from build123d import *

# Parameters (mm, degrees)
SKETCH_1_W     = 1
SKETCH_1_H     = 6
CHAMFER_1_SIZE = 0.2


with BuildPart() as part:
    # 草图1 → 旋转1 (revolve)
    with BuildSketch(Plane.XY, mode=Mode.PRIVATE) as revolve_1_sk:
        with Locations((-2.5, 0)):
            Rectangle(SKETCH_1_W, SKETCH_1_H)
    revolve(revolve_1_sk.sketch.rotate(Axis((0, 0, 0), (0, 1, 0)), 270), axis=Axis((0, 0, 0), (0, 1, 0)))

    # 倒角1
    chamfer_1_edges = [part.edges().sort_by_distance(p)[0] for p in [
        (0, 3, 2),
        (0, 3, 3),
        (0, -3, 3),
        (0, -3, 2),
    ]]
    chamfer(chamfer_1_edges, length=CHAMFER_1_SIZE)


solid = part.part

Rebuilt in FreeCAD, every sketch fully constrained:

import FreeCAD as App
import Part
import Sketcher


def edges_at(feature, points):
    """Names of the edges that pass closest to the given points."""
    edges = feature.Shape.Edges
    near = lambda p: min(range(len(edges)), key=lambda i: edges[i].distToShape(Part.Vertex(*p))[0])
    return sorted({f"Edge{near(p) + 1}" for p in points})

doc = App.newDocument("Part")
params = doc.addObject("Spreadsheet::Sheet", "Params")
for row, (alias, value) in enumerate([
    ("sketch1_width", "1 mm"),
    ("sketch1_height", "6 mm"),
    ("revolution_angle", "360 deg"),
    ("chamfer_size", "0.2 mm"),
], start=1):
    params.set(f"A{row}", alias)
    params.set(f"B{row}", "=" + value)
    params.setAlias(f"B{row}", alias)

body = doc.addObject("PartDesign::Body", "Body")

# Sketch on XY plane
sketch1 = body.newObject("Sketcher::SketchObject", "Sketch")
sketch1.AttachmentSupport = (doc.getObject("XY_Plane"), [""])
sketch1.MapMode = "FlatFace"
sketch1.addGeometry(Part.LineSegment(App.Vector(-3, 3, 0), App.Vector(-3, -3, 0)), False)
sketch1.addGeometry(Part.LineSegment(App.Vector(-3, -3, 0), App.Vector(-2, -3, 0)), False)
sketch1.addGeometry(Part.LineSegment(App.Vector(-2, -3, 0), App.Vector(-2, 3, 0)), False)
sketch1.addGeometry(Part.LineSegment(App.Vector(-2, 3, 0), App.Vector(-3, 3, 0)), False)
sketch1.addConstraint(Sketcher.Constraint("Coincident", 0, 2, 1, 1))
sketch1.addConstraint(Sketcher.Constraint("Coincident", 1, 2, 2, 1))
sketch1.addConstraint(Sketcher.Constraint("Coincident", 2, 2, 3, 1))
sketch1.addConstraint(Sketcher.Constraint("Coincident", 3, 2, 0, 1))
sketch1.addConstraint(Sketcher.Constraint("Vertical", 0))
sketch1.addConstraint(Sketcher.Constraint("Horizontal", 1))
sketch1.addConstraint(Sketcher.Constraint("Vertical", 2))
sketch1.addConstraint(Sketcher.Constraint("Horizontal", 3))
sketch1.addConstraint(Sketcher.Constraint("DistanceX", 1, 1, 1, 2, 1.0))
sketch1.addConstraint(Sketcher.Constraint("DistanceY", 0, 2, 0, 1, 6.0))
sketch1.addConstraint(Sketcher.Constraint("DistanceX", 0, 2, -1, 1, 3.0))
sketch1.addConstraint(Sketcher.Constraint("DistanceY", 0, 2, -1, 1, 3.0))
sketch1.setExpression("Constraints[8]", "Params.sketch1_width")
sketch1.setExpression("Constraints[9]", "Params.sketch1_height")
revolution = body.newObject("PartDesign::Revolution", "Revolution")
revolution.Profile = sketch1
revolution.ReferenceAxis = (sketch1, ["V_Axis"])
revolution.setExpression("Angle", "Params.revolution_angle")
doc.recompute()

chamfer = body.newObject("PartDesign::Chamfer", "Chamfer")
chamfer.Base = (revolution, edges_at(revolution, [
    (0, 3, 2),
    (0, 3, 3),
    (0, -3, 3),
    (0, -3, 2),
]))
chamfer.setExpression("Size", "Params.chamfer_size")

doc.recompute()
